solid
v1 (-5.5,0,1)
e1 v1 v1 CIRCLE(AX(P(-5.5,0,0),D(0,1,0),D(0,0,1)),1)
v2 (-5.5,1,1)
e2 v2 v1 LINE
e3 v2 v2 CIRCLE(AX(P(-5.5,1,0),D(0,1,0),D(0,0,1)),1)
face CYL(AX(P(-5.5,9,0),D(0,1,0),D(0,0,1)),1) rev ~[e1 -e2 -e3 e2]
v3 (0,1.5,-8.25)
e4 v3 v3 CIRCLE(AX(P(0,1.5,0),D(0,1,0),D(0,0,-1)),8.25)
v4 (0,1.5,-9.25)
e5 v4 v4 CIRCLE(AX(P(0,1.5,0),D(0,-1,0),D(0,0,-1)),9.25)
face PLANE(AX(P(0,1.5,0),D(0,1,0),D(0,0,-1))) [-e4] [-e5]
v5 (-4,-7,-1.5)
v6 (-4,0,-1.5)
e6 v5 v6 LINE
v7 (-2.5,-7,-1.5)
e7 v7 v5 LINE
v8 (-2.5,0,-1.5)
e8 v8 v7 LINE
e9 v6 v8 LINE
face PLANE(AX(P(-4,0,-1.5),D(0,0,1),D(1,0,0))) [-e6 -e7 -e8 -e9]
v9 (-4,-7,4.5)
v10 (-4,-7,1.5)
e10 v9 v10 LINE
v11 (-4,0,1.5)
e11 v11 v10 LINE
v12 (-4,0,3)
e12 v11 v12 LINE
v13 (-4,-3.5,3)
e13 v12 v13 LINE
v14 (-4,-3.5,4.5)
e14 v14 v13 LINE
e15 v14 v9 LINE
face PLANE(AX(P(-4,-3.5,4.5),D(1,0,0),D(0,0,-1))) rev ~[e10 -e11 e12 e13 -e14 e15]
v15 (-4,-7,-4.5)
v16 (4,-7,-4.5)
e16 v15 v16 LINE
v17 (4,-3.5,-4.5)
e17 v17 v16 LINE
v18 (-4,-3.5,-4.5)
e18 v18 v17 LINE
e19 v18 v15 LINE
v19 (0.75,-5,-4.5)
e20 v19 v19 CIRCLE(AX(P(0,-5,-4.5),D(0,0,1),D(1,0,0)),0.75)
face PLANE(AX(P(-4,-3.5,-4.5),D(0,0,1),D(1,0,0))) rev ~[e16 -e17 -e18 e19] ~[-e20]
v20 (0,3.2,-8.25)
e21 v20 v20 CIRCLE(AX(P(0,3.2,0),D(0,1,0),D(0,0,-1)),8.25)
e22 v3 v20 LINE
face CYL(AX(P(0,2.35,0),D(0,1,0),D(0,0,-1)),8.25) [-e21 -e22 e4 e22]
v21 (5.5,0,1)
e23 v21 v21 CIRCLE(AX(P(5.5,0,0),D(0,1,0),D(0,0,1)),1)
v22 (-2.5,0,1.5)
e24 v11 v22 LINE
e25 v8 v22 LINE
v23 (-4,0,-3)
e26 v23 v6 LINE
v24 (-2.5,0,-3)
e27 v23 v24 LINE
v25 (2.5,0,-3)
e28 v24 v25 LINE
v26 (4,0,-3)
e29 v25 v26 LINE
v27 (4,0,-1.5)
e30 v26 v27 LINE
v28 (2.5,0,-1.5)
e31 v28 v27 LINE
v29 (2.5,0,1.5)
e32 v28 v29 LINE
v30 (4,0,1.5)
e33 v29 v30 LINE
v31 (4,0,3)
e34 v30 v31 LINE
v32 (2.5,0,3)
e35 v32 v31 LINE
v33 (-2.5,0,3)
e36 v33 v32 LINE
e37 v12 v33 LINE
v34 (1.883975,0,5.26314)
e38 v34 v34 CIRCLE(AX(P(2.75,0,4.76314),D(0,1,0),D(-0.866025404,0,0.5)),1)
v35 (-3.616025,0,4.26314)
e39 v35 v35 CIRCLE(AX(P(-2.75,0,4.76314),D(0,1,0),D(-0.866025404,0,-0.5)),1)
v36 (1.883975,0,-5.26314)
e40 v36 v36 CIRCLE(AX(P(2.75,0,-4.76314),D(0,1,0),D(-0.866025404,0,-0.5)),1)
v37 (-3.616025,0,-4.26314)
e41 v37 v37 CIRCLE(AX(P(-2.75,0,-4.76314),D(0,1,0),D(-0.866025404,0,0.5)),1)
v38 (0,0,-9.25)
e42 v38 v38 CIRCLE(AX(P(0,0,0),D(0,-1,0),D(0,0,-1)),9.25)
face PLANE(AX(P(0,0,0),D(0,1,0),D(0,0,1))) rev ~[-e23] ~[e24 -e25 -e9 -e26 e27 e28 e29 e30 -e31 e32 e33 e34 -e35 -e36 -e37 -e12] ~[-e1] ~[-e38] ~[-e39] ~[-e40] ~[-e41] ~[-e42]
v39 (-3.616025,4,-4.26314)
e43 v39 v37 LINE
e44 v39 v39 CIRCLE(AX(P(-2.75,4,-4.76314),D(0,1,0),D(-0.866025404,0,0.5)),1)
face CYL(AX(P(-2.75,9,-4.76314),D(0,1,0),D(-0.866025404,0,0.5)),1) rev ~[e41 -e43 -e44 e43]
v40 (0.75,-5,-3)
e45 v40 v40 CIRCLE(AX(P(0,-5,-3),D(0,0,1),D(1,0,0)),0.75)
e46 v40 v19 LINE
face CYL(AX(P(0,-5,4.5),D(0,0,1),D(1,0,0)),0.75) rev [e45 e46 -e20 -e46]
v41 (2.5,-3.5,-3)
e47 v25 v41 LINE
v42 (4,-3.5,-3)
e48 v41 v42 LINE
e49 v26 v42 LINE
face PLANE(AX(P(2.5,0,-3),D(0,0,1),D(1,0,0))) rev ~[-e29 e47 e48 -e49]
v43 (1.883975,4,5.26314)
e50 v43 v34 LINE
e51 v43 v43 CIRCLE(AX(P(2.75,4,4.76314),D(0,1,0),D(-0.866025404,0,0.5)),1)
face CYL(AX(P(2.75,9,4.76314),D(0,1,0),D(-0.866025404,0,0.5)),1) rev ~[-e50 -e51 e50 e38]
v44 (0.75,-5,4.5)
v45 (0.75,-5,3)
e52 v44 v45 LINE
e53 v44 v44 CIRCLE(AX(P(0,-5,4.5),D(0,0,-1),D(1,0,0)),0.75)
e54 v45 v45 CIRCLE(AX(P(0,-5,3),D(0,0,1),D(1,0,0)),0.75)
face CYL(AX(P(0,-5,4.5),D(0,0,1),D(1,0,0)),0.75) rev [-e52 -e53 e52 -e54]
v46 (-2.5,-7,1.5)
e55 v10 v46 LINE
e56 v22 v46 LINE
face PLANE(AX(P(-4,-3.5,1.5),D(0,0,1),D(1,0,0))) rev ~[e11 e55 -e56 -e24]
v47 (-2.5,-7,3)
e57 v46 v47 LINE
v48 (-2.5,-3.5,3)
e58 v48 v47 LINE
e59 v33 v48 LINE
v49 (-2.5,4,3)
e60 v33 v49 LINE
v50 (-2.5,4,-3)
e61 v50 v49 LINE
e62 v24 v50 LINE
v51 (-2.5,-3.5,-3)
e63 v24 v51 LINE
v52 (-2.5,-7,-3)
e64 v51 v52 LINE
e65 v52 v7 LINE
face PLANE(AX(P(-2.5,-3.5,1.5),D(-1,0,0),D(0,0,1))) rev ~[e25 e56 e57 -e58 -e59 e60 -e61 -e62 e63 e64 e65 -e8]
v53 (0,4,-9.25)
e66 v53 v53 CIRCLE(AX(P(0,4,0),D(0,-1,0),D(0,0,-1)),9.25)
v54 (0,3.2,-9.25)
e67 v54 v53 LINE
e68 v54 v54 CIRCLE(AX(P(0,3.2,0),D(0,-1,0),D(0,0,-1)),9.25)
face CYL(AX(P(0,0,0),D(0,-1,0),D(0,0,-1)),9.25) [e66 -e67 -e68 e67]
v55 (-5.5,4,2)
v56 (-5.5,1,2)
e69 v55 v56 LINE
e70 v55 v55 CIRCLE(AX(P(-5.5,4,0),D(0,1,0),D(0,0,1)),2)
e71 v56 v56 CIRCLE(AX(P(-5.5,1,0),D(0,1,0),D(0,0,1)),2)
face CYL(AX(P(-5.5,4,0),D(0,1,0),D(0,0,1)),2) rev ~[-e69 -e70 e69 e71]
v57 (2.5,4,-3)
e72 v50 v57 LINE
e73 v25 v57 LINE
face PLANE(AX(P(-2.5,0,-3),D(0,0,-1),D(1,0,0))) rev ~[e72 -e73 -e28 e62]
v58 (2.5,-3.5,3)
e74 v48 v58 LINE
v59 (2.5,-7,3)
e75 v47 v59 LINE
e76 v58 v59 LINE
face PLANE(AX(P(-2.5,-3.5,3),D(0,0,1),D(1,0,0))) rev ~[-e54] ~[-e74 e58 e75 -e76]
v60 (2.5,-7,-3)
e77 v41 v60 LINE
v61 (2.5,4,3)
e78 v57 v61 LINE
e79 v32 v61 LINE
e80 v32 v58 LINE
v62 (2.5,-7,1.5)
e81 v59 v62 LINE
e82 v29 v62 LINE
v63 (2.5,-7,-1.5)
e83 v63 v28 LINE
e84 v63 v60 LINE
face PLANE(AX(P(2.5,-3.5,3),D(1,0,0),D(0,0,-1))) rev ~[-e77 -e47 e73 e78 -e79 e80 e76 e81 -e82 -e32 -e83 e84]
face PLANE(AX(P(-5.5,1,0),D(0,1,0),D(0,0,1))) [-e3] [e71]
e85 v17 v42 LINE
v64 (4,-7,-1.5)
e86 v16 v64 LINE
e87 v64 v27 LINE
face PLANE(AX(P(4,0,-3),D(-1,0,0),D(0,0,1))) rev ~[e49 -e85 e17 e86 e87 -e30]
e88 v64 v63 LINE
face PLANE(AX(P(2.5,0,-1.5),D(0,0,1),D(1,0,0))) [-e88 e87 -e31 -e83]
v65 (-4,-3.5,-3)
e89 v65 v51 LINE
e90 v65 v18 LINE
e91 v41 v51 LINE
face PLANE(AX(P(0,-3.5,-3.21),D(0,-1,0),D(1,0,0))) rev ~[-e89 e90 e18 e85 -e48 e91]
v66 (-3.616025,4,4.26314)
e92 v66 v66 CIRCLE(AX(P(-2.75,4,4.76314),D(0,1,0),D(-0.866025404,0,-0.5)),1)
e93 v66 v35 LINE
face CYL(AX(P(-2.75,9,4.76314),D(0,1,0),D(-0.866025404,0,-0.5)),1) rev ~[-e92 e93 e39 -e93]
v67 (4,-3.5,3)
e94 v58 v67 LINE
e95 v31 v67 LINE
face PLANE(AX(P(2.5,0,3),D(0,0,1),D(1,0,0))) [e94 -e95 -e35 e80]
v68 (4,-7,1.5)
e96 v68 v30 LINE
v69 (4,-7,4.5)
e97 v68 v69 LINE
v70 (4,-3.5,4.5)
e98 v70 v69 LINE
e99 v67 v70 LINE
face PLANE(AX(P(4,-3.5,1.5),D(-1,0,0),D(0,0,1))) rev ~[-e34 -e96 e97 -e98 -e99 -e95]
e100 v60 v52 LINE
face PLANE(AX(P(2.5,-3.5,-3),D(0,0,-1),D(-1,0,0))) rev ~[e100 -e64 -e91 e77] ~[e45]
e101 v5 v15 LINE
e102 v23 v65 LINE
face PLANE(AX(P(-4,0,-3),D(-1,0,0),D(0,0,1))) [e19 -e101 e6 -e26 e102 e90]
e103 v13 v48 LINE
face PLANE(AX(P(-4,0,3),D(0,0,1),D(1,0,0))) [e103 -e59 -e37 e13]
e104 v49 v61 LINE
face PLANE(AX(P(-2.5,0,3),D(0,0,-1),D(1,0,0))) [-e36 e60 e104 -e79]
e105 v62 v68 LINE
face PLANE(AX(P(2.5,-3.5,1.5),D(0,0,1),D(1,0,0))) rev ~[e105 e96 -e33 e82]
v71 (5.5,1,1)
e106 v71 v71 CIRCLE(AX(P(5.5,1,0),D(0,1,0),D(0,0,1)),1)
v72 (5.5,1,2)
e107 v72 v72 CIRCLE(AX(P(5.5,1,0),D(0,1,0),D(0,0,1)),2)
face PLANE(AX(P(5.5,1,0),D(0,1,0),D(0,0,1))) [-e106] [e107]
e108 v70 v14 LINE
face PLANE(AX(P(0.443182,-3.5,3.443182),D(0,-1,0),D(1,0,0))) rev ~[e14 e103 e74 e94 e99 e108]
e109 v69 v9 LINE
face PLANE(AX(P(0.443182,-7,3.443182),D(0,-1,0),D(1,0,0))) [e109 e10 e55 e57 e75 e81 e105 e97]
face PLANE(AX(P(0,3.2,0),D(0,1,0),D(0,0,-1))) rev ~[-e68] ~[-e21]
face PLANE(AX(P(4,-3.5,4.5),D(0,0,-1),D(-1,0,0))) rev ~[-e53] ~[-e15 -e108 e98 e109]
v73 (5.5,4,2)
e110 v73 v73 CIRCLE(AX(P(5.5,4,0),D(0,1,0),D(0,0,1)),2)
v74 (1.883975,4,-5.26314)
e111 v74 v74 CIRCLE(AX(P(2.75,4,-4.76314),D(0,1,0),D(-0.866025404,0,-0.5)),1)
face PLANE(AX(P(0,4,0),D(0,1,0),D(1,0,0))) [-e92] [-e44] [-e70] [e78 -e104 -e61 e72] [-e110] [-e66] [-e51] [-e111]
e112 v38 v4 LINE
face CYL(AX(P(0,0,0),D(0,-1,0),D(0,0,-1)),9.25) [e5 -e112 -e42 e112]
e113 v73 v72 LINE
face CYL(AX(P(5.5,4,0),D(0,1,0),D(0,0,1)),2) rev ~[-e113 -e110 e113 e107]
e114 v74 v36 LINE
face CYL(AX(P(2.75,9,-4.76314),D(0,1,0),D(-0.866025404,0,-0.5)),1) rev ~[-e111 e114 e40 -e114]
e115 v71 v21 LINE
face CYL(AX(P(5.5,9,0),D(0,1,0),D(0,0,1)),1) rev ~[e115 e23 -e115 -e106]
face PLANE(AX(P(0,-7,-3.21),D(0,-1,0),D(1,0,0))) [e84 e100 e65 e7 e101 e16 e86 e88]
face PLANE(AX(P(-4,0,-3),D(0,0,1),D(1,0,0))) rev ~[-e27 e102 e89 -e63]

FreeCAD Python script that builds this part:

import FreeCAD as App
import Part
import Sketcher

V = App.Vector
Q = App.Units.Quantity


def add_polygon(sketch, points):
    """Adds a closed chain of lines whose ends are joined by coincident constraints."""
    first, n = sketch.GeometryCount, len(points)
    for a, b in zip(points, points[1:] + points[:1]):
        sketch.addGeometry(Part.LineSegment(App.Vector(*a, 0), App.Vector(*b, 0)), False)
    for i in range(n):
        sketch.addConstraint(Sketcher.Constraint("Coincident", first + i, 2, first + (i + 1) % n, 1))

doc = App.newDocument("Part")
body = doc.addObject("PartDesign::Body", "Body")

# Sketch on XZ plane
sketch1 = body.newObject("Sketcher::SketchObject", "Sketch")
sketch1.AttachmentSupport = (doc.getObject("XZ_Plane"), [""])
sketch1.MapMode = "FlatFace"
sketch1.addGeometry(Part.Circle(V(0, 0, 0), V(0, 0, 1), 11), False)
sketch1.addConstraint([
    Sketcher.Constraint("Coincident", 0, 3, -1, 1),
    Sketcher.Constraint("Diameter", 0, Q("22 mm")),
])
pad1 = body.newObject("PartDesign::Pad", "Pad")
pad1.Profile = sketch1
pad1.Length = 9
pad1.Reversed = True

# Sketch on XZ plane
sketch2 = body.newObject("Sketcher::SketchObject", "Sketch001")
sketch2.AttachmentSupport = (doc.getObject("XZ_Plane"), [""])
sketch2.MapMode = "FlatFace"
sketch2.AttachmentOffset = App.Placement(V(0, 0, -9), App.Rotation())
sketch2.addGeometry([
    Part.Circle(V(-5.5, 0, 0), V(0, 0, 1), 1),
    Part.Circle(V(5.5, 0, 0), V(0, 0, 1), 1),
], False)
sketch2.addConstraint([
    Sketcher.Constraint("Equal", 0, 1),
    Sketcher.Constraint("Symmetric", 0, 3, 1, 3, -1, 1),
    Sketcher.Constraint("PointOnObject", 0, 3, -1),
    Sketcher.Constraint("Diameter", 0, Q("2 mm")),
    Sketcher.Constraint("DistanceX", 0, 3, 1, 3, Q("11 mm")),
])
pocket1 = body.newObject("PartDesign::Pocket", "Pocket")
pocket1.Profile = sketch2
pocket1.Length = 10
pocket1.Reversed = True

# Sketch on XZ plane
sketch3 = body.newObject("Sketcher::SketchObject", "Sketch002")
sketch3.AttachmentSupport = (doc.getObject("XZ_Plane"), [""])
sketch3.MapMode = "FlatFace"
sketch3.addGeometry([
    Part.Circle(V(0, 0, 0), V(0, 0, 1), 17),
    Part.Circle(V(0, 0, 0), V(0, 0, 1), 9),
], False)
sketch3.addConstraint([
    Sketcher.Constraint("Coincident", 0, 3, -1, 1),
    Sketcher.Constraint("Coincident", 1, 3, -1, 1),
    Sketcher.Constraint("Diameter", 1, Q("18.5 mm")),
    Sketcher.Constraint("Diameter", 0, Q("33.098269 mm")),
])
pocket2 = body.newObject("PartDesign::Pocket", "Pocket001")
pocket2.Profile = sketch3
pocket2.Length = 7

# Sketch on XY plane
sketch4 = body.newObject("Sketcher::SketchObject", "Sketch003")
sketch4.AttachmentSupport = (doc.getObject("XY_Plane"), [""])
sketch4.MapMode = "FlatFace"
add_polygon(sketch4, [(-10.2, 6.3), (-10.2, 4.6), (-8.2, 4.6), (-8.2, 6.3)])  # lines 0-3
add_polygon(sketch4, [(-10.2, 3.2), (-10.2, 1.5), (-8.2, 1.5), (-8.2, 3.2)])  # lines 4-7
sketch4.addConstraint([
    Sketcher.Constraint("Vertical", 0),
    Sketcher.Constraint("Horizontal", 1),
    Sketcher.Constraint("Vertical", 2),
    Sketcher.Constraint("Horizontal", 3),
    Sketcher.Constraint("Vertical", 4),
    Sketcher.Constraint("Horizontal", 5),
    Sketcher.Constraint("Vertical", 6),
    Sketcher.Constraint("Horizontal", 7),
    Sketcher.Constraint("Vertical", 3, 2, 4, 2),
    Sketcher.Constraint("Vertical", 2, 2, 5, 2),
    Sketcher.Constraint("Equal", 2, 4),
    Sketcher.Constraint("DistanceX", 1, 1, 1, 2, Q("2 mm")),
    Sketcher.Constraint("DistanceY", 0, 2, 0, 1, Q("1.7 mm")),
    Sketcher.Constraint("DistanceY", -1, 1, 0, 2, Q("4.6 mm")),
    Sketcher.Constraint("DistanceY", -1, 1, 4, 2, Q("1.5 mm")),
    Sketcher.Constraint("DistanceX", 0, 2, -1, 1, Q("10.25 mm")),
])
groove = body.newObject("PartDesign::Groove", "Groove")
groove.Profile = sketch4
groove.ReferenceAxis = (sketch4, ["V_Axis"])
groove.Angle = 360

# Sketch on XZ plane
sketch5 = body.newObject("Sketcher::SketchObject", "Sketch004")
sketch5.AttachmentSupport = (doc.getObject("XZ_Plane"), [""])
sketch5.MapMode = "FlatFace"
add_polygon(sketch5, [(-2, 3), (-2, -3), (2, -3), (2, 3)])  # lines 0-3
sketch5.addConstraint([
    Sketcher.Constraint("Vertical", 0),
    Sketcher.Constraint("Horizontal", 1),
    Sketcher.Constraint("Vertical", 2),
    Sketcher.Constraint("Horizontal", 3),
    Sketcher.Constraint("Symmetric", 0, 2, 2, 2, -1, 1),
    Sketcher.Constraint("DistanceX", 1, 1, 1, 2, Q("5 mm")),
    Sketcher.Constraint("DistanceY", 0, 2, 0, 1, Q("6 mm")),
])
pocket3 = body.newObject("PartDesign::Pocket", "Pocket002")
pocket3.Profile = sketch5
pocket3.Length = 7

# Sketch on XZ plane
sketch6 = body.newObject("Sketcher::SketchObject", "Sketch005")
sketch6.AttachmentSupport = (doc.getObject("XZ_Plane"), [""])
sketch6.MapMode = "FlatFace"
sketch6.AttachmentOffset = App.Placement(V(0, 0, -9), App.Rotation())
sketch6.addGeometry(Part.Circle(V(0, 0, 0), V(0, 0, 1), 1.4), False)
sketch6.addConstraint([
    Sketcher.Constraint("Coincident", 0, 3, -1, 1),
    Sketcher.Constraint("Diameter", 0, Q("2.8 mm")),
])
pocket4 = body.newObject("PartDesign::Pocket", "Pocket003")
pocket4.Profile = sketch6
pocket4.Length = 7
pocket4.Reversed = True
doc.recompute()

polarpattern = body.newObject("PartDesign::PolarPattern", "PolarPattern")
polarpattern.Originals = [pocket1]
polarpattern.Axis = (doc.getObject("Y_Axis"), [""])
polarpattern.Angle = 120
polarpattern.Occurrences = 3
polarpattern.Reversed = True
body.Tip = polarpattern

# Sketch on XZ plane
sketch7 = body.newObject("Sketcher::SketchObject", "Sketch006")
sketch7.AttachmentSupport = (doc.getObject("XZ_Plane"), [""])
sketch7.MapMode = "FlatFace"
sketch7.AttachmentOffset = App.Placement(V(0, 0, -9), App.Rotation())
sketch7.addGeometry(Part.Circle(V(0, 0, 0), V(0, 0, 1), 18), False)
sketch7.addConstraint([
    Sketcher.Constraint("Coincident", 0, 3, -1, 1),
    Sketcher.Constraint("Diameter", 0, Q("35.510526 mm")),
])
pocket5 = body.newObject("PartDesign::Pocket", "Pocket004")
pocket5.Profile = sketch7
pocket5.Length = 5
pocket5.Reversed = True

# Sketch on XZ plane
sketch8 = body.newObject("Sketcher::SketchObject", "Sketch007")
sketch8.AttachmentSupport = (doc.getObject("XZ_Plane"), [""])
sketch8.MapMode = "FlatFace"
sketch8.AttachmentOffset = App.Placement(V(0, 0, -4), App.Rotation())
sketch8.addGeometry([
    Part.Circle(V(-5.5, 0, 0), V(0, 0, 1), 2),
    Part.Circle(V(5.5, 0, 0), V(0, 0, 1), 2),
], False)
sketch8.addConstraint([
    Sketcher.Constraint("Equal", 0, 1),
    Sketcher.Constraint("Symmetric", 0, 3, 1, 3, -1, 1),
    Sketcher.Constraint("PointOnObject", 0, 3, -1),
    Sketcher.Constraint("Diameter", 0, Q("4 mm")),
    Sketcher.Constraint("DistanceX", 0, 3, 1, 3, Q("11 mm")),
])
pocket6 = body.newObject("PartDesign::Pocket", "Pocket005")
pocket6.Profile = sketch8
pocket6.Length = 3
pocket6.Reversed = True

# Sketch on XZ plane
sketch9 = body.newObject("Sketcher::SketchObject", "Sketch008")
sketch9.AttachmentSupport = (doc.getObject("XZ_Plane"), [""])
sketch9.MapMode = "FlatFace"
add_polygon(sketch9, [(-4, 3), (-4, 1.5), (-2.5, 1.5), (-2.5, 3)])  # lines 0-3
add_polygon(sketch9, [(2.5, 3), (2.5, 1.5), (4, 1.5), (4, 3)])  # lines 4-7
add_polygon(sketch9, [(2.5, -1.5), (2.5, -3), (4, -3), (4, -1.5)])  # lines 8-11
add_polygon(sketch9, [(-4, -1.5), (-4, -3), (-2.5, -3), (-2.5, -1.5)])  # lines 12-15
sketch9.addConstraint([
    Sketcher.Constraint("Vertical", 0),
    Sketcher.Constraint("Horizontal", 1),
    Sketcher.Constraint("Vertical", 2),
    Sketcher.Constraint("Horizontal", 3),
    Sketcher.Constraint("Vertical", 4),
    Sketcher.Constraint("Horizontal", 5),
    Sketcher.Constraint("Vertical", 6),
    Sketcher.Constraint("Horizontal", 7),
    Sketcher.Constraint("Vertical", 8),
    Sketcher.Constraint("Horizontal", 9),
    Sketcher.Constraint("Vertical", 10),
    Sketcher.Constraint("Horizontal", 11),
    Sketcher.Constraint("Vertical", 12),
    Sketcher.Constraint("Horizontal", 13),
    Sketcher.Constraint("Vertical", 14),
    Sketcher.Constraint("Horizontal", 15),
    Sketcher.Constraint("Symmetric", 2, 2, 8, 2, -1, 1),
    Sketcher.Constraint("Symmetric", 0, 2, 10, 2, -1, 1),
    Sketcher.Constraint("Symmetric", 6, 2, 12, 2, -1, 1),
    Sketcher.Constraint("Symmetric", 4, 2, 14, 2, -1, 1),
    Sketcher.Constraint("Symmetric", 1, 2, 4, 2, -2),
    Sketcher.Constraint("Symmetric", 3, 2, 6, 2, -2),
    Sketcher.Constraint("Equal", 15, 0),
    Sketcher.Constraint("DistanceX", 1, 1, 1, 2, Q("1.5 mm")),
    Sketcher.Constraint("DistanceX", 0, 2, -1, 1, Q("4 mm")),
    Sketcher.Constraint("DistanceY", -1, 1, 2, 2, Q("3 mm")),
])
pad2 = body.newObject("PartDesign::Pad", "Pad001")
pad2.Profile = sketch9
pad2.Length = 3.5

# Sketch on XZ plane
sketch10 = body.newObject("Sketcher::SketchObject", "Sketch009")
sketch10.AttachmentSupport = (doc.getObject("XZ_Plane"), [""])
sketch10.MapMode = "FlatFace"
sketch10.AttachmentOffset = App.Placement(V(0, 0, 3.5), App.Rotation())
add_polygon(sketch10, [(-4, 4.5), (-4, 1.5), (-2.5, 1.5), (-2.5, 3), (2.5, 3), (2.5, 1.5), (4, 1.5), (4, 4.5)])  # lines 0-7
add_polygon(sketch10, [(-2.5, -3), (-2.5, -1.5), (-4, -1.5), (-4, -4.5), (4, -4.5), (4, -1.5), (2.5, -1.5), (2.5, -3)])  # lines 8-15
sketch10.addConstraint([
    Sketcher.Constraint("Vertical", 0),
    Sketcher.Constraint("Horizontal", 1),
    Sketcher.Constraint("Vertical", 2),
    Sketcher.Constraint("Horizontal", 3),
    Sketcher.Constraint("Vertical", 4),
    Sketcher.Constraint("Horizontal", 5),
    Sketcher.Constraint("Vertical", 6),
    Sketcher.Constraint("Horizontal", 7),
    Sketcher.Constraint("Vertical", 8),
    Sketcher.Constraint("Horizontal", 9),
    Sketcher.Constraint("Vertical", 10),
    Sketcher.Constraint("Horizontal", 11),
    Sketcher.Constraint("Vertical", 12),
    Sketcher.Constraint("Horizontal", 13),
    Sketcher.Constraint("Vertical", 14),
    Sketcher.Constraint("Horizontal", 15),
    Sketcher.Constraint("Symmetric", 4, 2, 8, 2, -1, 1),
    Sketcher.Constraint("Symmetric", 6, 2, 10, 2, -1, 1),
    Sketcher.Constraint("Symmetric", 0, 2, 12, 2, -1, 1),
    Sketcher.Constraint("Symmetric", 2, 2, 14, 2, -1, 1),
    Sketcher.Constraint("Symmetric", 1, 2, 4, 2, -2),
    Sketcher.Constraint("Vertical", 7, 2, 9, 2),
    Sketcher.Constraint("Equal", 13, 2),
    Sketcher.Constraint("DistanceX", 3, 1, 3, 2, Q("5 mm")),
    Sketcher.Constraint("DistanceX", 7, 2, 7, 1, Q("8 mm")),
    Sketcher.Constraint("DistanceY", 0, 2, 0, 1, Q("3 mm")),
    Sketcher.Constraint("DistanceY", -1, 1, 2, 2, Q("3 mm")),
])
pad3 = body.newObject("PartDesign::Pad", "Pad002")
pad3.Profile = sketch10
pad3.Length = 3.5

# Sketch on XY plane
sketch11 = body.newObject("Sketcher::SketchObject", "Sketch010")
sketch11.AttachmentSupport = (doc.getObject("XY_Plane"), [""])
sketch11.MapMode = "FlatFace"
sketch11.AttachmentOffset = App.Placement(V(0, 0, 4.5), App.Rotation())
sketch11.addGeometry(Part.Circle(V(0, -5, 0), V(0, 0, 1), 0.8), False)
sketch11.addConstraint([
    Sketcher.Constraint("PointOnObject", 0, 3, -2),
    Sketcher.Constraint("Diameter", 0, Q("1.5 mm")),
    Sketcher.Constraint("DistanceY", 0, 3, -1, 1, Q("5 mm")),
])
pocket7 = body.newObject("PartDesign::Pocket", "Pocket006")
pocket7.Profile = sketch11
pocket7.Type = "ThroughAll"

doc.recompute()
